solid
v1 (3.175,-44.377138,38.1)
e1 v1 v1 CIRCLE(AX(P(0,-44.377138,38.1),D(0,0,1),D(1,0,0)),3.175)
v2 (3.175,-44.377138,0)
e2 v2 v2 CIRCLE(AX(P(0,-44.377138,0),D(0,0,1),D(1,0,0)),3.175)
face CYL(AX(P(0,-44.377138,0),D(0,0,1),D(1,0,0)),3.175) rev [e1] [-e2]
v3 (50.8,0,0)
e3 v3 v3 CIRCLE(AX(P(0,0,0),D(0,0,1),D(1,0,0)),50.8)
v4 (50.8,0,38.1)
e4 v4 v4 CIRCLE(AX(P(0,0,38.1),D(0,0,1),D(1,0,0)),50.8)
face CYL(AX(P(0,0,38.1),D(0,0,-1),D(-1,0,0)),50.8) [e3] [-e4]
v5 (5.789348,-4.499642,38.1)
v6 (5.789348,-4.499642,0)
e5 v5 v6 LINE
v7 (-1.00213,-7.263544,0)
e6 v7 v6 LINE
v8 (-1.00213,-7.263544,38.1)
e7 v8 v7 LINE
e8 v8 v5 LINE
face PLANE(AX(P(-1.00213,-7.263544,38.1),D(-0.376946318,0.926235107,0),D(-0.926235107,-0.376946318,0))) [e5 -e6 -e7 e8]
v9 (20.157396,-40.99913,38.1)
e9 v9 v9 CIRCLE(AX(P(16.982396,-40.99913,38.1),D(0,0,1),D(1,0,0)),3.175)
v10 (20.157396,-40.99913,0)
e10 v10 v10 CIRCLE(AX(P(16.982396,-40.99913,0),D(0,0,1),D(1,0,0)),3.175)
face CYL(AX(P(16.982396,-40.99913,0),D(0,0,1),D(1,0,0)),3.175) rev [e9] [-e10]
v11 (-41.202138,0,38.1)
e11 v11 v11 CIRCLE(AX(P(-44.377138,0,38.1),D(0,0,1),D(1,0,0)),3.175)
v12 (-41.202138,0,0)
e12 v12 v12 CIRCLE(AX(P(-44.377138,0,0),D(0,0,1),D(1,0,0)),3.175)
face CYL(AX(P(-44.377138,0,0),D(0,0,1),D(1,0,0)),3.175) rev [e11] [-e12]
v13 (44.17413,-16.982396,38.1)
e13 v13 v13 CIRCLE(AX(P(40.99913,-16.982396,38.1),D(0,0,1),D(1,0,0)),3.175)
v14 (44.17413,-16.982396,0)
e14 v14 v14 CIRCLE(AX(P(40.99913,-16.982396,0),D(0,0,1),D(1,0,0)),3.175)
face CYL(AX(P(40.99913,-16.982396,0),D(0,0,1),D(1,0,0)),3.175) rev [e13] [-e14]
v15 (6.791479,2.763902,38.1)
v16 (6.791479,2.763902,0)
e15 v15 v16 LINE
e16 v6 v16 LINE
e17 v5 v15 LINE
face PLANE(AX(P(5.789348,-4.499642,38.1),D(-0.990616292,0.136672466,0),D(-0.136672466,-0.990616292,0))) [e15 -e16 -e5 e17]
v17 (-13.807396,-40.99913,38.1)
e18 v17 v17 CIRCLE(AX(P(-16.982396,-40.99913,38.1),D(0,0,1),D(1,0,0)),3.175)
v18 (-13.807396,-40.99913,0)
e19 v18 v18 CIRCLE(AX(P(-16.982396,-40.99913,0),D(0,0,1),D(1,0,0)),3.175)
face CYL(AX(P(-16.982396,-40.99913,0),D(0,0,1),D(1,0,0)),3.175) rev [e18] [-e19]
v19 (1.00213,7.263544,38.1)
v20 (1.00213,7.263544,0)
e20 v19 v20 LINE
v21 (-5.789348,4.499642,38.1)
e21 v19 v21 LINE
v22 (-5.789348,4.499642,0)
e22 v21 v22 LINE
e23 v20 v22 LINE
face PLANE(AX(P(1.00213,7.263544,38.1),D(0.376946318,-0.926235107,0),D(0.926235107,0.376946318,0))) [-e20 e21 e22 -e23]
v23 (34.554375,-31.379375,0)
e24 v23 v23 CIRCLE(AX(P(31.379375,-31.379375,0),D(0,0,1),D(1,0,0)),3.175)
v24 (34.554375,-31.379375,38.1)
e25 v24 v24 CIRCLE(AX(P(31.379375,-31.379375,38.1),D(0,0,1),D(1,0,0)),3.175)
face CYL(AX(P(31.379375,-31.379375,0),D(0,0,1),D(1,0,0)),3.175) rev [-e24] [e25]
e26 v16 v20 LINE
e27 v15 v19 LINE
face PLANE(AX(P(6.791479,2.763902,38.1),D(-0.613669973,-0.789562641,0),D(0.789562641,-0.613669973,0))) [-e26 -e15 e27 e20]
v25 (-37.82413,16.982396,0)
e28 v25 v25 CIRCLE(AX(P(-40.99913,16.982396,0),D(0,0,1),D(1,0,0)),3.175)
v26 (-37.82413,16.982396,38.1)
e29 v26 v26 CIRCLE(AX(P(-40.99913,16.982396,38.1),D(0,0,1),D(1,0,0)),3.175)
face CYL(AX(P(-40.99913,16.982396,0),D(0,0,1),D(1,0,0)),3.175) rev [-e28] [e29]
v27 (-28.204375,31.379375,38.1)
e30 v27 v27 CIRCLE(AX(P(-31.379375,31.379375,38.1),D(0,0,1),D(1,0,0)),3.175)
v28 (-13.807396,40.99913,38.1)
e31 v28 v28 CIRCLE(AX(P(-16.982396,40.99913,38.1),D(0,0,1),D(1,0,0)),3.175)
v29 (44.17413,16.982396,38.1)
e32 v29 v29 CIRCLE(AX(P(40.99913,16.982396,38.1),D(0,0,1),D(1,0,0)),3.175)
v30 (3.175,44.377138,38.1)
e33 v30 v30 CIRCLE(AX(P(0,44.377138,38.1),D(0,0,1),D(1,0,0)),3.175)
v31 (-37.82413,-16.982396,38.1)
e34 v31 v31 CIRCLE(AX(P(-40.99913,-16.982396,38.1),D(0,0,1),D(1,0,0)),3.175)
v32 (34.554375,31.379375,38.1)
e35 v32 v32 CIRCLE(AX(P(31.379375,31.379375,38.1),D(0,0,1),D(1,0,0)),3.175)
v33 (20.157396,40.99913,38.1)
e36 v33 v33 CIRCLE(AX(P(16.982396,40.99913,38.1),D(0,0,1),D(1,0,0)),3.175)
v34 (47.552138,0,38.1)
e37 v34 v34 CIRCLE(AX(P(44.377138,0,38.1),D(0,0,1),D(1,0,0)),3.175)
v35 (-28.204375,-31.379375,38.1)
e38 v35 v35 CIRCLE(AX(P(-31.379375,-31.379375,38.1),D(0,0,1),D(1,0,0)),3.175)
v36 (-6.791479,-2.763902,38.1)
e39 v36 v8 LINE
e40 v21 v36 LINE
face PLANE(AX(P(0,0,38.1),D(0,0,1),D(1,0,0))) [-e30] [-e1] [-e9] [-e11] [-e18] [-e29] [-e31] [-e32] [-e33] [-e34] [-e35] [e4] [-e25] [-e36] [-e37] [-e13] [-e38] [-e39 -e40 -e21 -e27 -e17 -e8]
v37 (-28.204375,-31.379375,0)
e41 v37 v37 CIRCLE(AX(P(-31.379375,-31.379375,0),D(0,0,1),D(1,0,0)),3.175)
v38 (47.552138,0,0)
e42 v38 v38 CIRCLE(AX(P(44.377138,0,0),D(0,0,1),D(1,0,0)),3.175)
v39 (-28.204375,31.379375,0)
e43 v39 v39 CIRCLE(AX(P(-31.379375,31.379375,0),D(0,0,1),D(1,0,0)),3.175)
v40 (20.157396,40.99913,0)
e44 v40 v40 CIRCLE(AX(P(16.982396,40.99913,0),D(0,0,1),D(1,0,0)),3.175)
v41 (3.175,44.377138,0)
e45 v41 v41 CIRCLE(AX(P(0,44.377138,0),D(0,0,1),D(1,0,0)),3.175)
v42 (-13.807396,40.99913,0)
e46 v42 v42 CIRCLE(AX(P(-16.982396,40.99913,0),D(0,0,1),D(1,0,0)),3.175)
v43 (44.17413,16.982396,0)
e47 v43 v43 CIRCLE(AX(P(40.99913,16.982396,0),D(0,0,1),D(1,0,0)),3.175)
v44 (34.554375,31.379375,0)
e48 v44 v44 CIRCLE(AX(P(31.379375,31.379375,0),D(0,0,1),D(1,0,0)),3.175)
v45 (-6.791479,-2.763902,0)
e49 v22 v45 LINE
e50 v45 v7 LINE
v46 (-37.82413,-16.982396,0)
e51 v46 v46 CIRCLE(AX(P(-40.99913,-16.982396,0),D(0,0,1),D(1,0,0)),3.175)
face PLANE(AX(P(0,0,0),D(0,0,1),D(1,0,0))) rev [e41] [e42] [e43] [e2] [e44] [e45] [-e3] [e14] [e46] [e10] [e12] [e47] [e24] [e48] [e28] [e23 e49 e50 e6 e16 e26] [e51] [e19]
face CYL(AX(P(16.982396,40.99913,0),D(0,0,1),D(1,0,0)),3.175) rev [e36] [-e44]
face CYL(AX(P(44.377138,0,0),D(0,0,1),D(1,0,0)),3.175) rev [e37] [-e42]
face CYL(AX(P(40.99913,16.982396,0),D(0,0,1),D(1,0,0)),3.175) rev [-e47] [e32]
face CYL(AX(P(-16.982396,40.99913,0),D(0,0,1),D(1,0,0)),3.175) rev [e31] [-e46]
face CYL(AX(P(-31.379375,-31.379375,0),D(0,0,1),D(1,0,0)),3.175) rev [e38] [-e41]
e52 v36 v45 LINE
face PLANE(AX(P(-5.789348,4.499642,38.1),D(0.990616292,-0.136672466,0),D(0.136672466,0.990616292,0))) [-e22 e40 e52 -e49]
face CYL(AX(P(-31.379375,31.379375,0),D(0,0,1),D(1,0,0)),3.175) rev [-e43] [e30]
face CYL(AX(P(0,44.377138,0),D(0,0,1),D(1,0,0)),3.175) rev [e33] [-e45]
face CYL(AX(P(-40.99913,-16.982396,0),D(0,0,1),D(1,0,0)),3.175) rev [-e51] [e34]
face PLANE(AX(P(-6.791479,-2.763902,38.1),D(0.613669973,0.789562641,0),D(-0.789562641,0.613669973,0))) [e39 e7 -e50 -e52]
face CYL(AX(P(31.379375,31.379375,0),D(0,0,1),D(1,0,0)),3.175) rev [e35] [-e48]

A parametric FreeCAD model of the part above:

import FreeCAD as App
import Part
import Sketcher

V = App.Vector
Q = App.Units.Quantity


def add_polygon(sketch, points):
    """Adds a closed chain of lines whose ends are joined by coincident constraints."""
    first, n = sketch.GeometryCount, len(points)
    for a, b in zip(points, points[1:] + points[:1]):
        sketch.addGeometry(Part.LineSegment(App.Vector(*a, 0), App.Vector(*b, 0)), False)
    for i in range(n):
        sketch.addConstraint(Sketcher.Constraint("Coincident", first + i, 2, first + (i + 1) % n, 1))

doc = App.newDocument("Part")
params = doc.addObject("Spreadsheet::Sheet", "Params")
for row, (alias, value) in enumerate([
    ("sketch1_diameter", "4 in"),
    ("pad1_length", "1.5 in"),
    ("sketch2_diameter", "0.25 in"),
], start=1):
    params.set(f"A{row}", alias)
    params.set(f"B{row}", "=" + value)
    params.setAlias(f"B{row}", alias)

body = doc.addObject("PartDesign::Body", "Body")

# Sketch on XY plane
sketch1 = body.newObject("Sketcher::SketchObject", "Sketch")
sketch1.AttachmentSupport = (doc.getObject("XY_Plane"), [""])
sketch1.MapMode = "FlatFace"
sketch1.addGeometry(Part.Circle(V(0, 0, 0), V(0, 0, 1), 51), False)  # 0
add_polygon(sketch1, [(7, 3), (6, -4), (-1, -7), (-7, -3), (-6, 4), (1, 7)])  # lines 1-6
sketch1.addConstraint([
    Sketcher.Constraint("Coincident", 0, 3, -1, 1),
    Sketcher.Constraint("Symmetric", 1, 2, 4, 2, -1, 1),
    Sketcher.Constraint("Symmetric", 2, 2, 5, 2, -1, 1),
    Sketcher.Constraint("Symmetric", 3, 2, 6, 2, -1, 1),
    Sketcher.Constraint("Equal", 1, 2),
    Sketcher.Constraint("Equal", 2, 3),
    Sketcher.Constraint("Diameter", 0, Q("4 in")),
    Sketcher.Constraint("DistanceY", 3, 2, -1, 1, Q("2.763902 mm")),
    Sketcher.Constraint("DistanceY", 2, 2, 1, 2, Q("2.763902 mm")),
    Sketcher.Constraint("Distance", 1, Q("7.332348 mm")),
    Sketcher.Constraint("DistanceX", -1, 1, 1, 2, Q("5.789348 mm")),
])
sketch1.setExpression("Constraints[12]", "Params.sketch1_diameter")
pad1 = body.newObject("PartDesign::Pad", "Pad")
pad1.Profile = sketch1
pad1.setExpression("Length", "Params.pad1_length")

# Sketch on XY plane
sketch2 = body.newObject("Sketcher::SketchObject", "Sketch001")
sketch2.AttachmentSupport = (doc.getObject("XY_Plane"), [""])
sketch2.MapMode = "FlatFace"
sketch2.AttachmentOffset = App.Placement(V(0, 0, 1.5 * 25.4), App.Rotation())
sketch2.addGeometry([
    Part.Circle(V(0, 44.4, 0), V(0, 0, 1), 3.2),  # 0
    Part.Circle(V(17, 41, 0), V(0, 0, 1), 3.2),  # 1
    Part.Circle(V(31.4, 31.4, 0), V(0, 0, 1), 3.2),  # 2
    Part.Circle(V(41, 17, 0), V(0, 0, 1), 3.2),  # 3
    Part.Circle(V(44.4, 0, 0), V(0, 0, 1), 3.2),  # 4
    Part.Circle(V(41, -17, 0), V(0, 0, 1), 3.2),  # 5
    Part.Circle(V(31.4, -31.4, 0), V(0, 0, 1), 3.2),  # 6
    Part.Circle(V(17, -41, 0), V(0, 0, 1), 3.2),  # 7
    Part.Circle(V(0, -44.4, 0), V(0, 0, 1), 3.2),  # 8
    Part.Circle(V(-17, -41, 0), V(0, 0, 1), 3.2),  # 9
    Part.Circle(V(-31.4, -31.4, 0), V(0, 0, 1), 3.2),  # 10
    Part.Circle(V(-41, -17, 0), V(0, 0, 1), 3.2),  # 11
    Part.Circle(V(-44.4, 0, 0), V(0, 0, 1), 3.2),  # 12
    Part.Circle(V(-41, 17, 0), V(0, 0, 1), 3.2),  # 13
    Part.Circle(V(-31.4, 31.4, 0), V(0, 0, 1), 3.2),  # 14
    Part.Circle(V(-17, 41, 0), V(0, 0, 1), 3.2),  # 15
], False)
sketch2.addConstraint([
    Sketcher.Constraint("Equal", 0, 1),
    Sketcher.Constraint("Equal", 1, 2),
    Sketcher.Constraint("Equal", 2, 3),
    Sketcher.Constraint("Equal", 3, 4),
    Sketcher.Constraint("Equal", 4, 5),
    Sketcher.Constraint("Equal", 5, 6),
    Sketcher.Constraint("Equal", 6, 7),
    Sketcher.Constraint("Equal", 7, 8),
    Sketcher.Constraint("Equal", 8, 9),
    Sketcher.Constraint("Equal", 9, 10),
    Sketcher.Constraint("Equal", 10, 11),
    Sketcher.Constraint("Equal", 11, 12),
    Sketcher.Constraint("Equal", 12, 13),
    Sketcher.Constraint("Equal", 13, 14),
    Sketcher.Constraint("Equal", 14, 15),
    Sketcher.Constraint("Symmetric", 0, 3, 8, 3, -1, 1),
    Sketcher.Constraint("Symmetric", 1, 3, 9, 3, -1, 1),
    Sketcher.Constraint("Symmetric", 2, 3, 10, 3, -1, 1),
    Sketcher.Constraint("Symmetric", 3, 3, 11, 3, -1, 1),
    Sketcher.Constraint("Symmetric", 4, 3, 12, 3, -1, 1),
    Sketcher.Constraint("Symmetric", 5, 3, 13, 3, -1, 1),
    Sketcher.Constraint("Symmetric", 6, 3, 14, 3, -1, 1),
    Sketcher.Constraint("Symmetric", 7, 3, 15, 3, -1, 1),
    Sketcher.Constraint("Symmetric", 7, 3, 9, 3, -2),
    Sketcher.Constraint("Symmetric", 6, 3, 10, 3, -2),
    Sketcher.Constraint("Symmetric", 5, 3, 11, 3, -2),
    Sketcher.Constraint("PointOnObject", 0, 3, -2),
    Sketcher.Constraint("PointOnObject", 4, 3, -1),
    Sketcher.Constraint("Diameter", 0, Q("0.25 in")),
    Sketcher.Constraint("DistanceY", -1, 1, 0, 3, Q("44.377138 mm")),
    Sketcher.Constraint("DistanceY", -1, 1, 1, 3, Q("40.99913 mm")),
    Sketcher.Constraint("DistanceX", -1, 1, 3, 3, Q("40.99913 mm")),
    Sketcher.Constraint("DistanceX", -1, 1, 4, 3, Q("44.377138 mm")),
    Sketcher.Constraint("DistanceX", 1, 3, 2, 3, Q("14.39698 mm")),
    Sketcher.Constraint("DistanceY", 3, 3, 2, 3, Q("14.39698 mm")),
    Sketcher.Constraint("DistanceY", 5, 3, 3, 3, Q("33.964791 mm")),
    Sketcher.Constraint("DistanceX", 9, 3, 7, 3, Q("33.964791 mm")),
])
sketch2.setExpression("Constraints[28]", "Params.sketch2_diameter")
pocket1 = body.newObject("PartDesign::Pocket", "Pocket")
pocket1.Profile = sketch2
pocket1.Type = "ThroughAll"

doc.recompute()
